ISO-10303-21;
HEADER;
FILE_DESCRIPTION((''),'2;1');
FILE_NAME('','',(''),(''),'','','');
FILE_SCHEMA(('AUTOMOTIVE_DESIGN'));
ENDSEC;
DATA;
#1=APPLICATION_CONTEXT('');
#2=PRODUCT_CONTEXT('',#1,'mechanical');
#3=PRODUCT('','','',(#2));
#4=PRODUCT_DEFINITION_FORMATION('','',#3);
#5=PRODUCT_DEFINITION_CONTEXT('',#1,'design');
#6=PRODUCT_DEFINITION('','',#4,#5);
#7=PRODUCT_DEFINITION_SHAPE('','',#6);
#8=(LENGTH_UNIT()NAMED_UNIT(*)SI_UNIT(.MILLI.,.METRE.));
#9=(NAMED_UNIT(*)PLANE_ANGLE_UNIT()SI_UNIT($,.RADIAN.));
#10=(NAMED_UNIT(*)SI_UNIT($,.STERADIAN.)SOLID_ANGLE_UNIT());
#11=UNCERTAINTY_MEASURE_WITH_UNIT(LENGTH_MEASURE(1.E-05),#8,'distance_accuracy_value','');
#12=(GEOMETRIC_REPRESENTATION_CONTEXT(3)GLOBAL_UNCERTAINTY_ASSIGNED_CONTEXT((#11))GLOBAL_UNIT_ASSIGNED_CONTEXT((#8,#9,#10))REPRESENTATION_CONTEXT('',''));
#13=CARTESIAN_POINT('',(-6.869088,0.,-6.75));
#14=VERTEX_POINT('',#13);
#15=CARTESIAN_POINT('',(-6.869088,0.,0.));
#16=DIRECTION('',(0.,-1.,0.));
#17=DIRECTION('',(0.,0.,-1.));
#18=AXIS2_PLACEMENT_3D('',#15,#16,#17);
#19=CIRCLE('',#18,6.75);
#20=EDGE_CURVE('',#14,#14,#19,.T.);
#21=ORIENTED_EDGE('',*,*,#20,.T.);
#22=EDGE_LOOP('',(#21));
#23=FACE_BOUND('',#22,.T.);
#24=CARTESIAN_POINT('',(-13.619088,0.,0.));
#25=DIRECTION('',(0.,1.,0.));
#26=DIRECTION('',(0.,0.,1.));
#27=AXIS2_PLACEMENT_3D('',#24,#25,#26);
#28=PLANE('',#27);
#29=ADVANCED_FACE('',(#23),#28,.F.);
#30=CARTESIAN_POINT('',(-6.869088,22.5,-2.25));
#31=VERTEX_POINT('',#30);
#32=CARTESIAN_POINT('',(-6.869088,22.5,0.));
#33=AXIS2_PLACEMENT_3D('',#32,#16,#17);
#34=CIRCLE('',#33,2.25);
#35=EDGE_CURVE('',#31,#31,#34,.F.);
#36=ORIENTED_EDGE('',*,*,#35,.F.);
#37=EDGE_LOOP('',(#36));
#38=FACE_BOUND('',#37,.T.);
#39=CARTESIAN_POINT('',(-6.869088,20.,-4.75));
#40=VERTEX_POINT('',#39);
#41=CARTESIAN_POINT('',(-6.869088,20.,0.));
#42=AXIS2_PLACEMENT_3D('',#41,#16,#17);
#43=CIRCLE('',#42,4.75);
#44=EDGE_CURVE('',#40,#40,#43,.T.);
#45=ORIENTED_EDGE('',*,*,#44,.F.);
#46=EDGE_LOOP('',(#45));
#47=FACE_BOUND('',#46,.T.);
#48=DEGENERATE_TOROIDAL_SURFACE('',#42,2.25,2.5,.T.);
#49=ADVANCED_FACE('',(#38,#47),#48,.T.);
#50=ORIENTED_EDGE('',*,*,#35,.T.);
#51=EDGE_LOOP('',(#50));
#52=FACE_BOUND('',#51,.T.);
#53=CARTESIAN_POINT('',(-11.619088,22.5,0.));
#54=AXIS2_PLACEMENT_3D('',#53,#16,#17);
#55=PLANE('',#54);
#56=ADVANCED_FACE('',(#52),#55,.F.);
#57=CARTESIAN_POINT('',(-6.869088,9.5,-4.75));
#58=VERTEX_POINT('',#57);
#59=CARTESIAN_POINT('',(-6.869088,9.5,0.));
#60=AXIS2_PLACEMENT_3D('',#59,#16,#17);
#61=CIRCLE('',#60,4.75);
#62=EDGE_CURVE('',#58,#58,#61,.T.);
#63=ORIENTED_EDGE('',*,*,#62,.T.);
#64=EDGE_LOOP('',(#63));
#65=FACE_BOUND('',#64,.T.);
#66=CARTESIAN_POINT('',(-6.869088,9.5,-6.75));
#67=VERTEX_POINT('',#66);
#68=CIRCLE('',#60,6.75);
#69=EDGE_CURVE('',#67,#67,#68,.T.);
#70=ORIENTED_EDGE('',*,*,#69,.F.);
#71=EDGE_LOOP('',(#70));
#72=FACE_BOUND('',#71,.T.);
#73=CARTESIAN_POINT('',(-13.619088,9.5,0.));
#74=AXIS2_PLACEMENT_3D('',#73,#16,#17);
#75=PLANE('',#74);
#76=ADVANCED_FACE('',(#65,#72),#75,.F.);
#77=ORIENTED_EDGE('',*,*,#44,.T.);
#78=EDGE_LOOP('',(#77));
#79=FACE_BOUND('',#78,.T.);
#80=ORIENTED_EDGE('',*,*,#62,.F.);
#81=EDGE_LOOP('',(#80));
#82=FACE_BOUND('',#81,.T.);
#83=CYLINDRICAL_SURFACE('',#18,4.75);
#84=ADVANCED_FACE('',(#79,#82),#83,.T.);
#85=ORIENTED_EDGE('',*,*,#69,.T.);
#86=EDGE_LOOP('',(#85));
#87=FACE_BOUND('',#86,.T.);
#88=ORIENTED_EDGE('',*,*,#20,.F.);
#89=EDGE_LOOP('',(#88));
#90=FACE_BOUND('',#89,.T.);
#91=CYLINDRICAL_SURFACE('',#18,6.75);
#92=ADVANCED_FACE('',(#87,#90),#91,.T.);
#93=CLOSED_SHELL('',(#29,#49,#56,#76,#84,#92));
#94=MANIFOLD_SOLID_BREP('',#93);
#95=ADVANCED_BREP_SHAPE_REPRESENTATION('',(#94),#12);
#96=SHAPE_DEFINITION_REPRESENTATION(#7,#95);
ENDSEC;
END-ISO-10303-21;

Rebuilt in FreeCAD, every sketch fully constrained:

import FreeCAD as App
import Part
import Sketcher
from FreeCAD import Vector
Q = App.Units.Quantity


def edges_at(feature, points):
    """Names of the edges that pass closest to the given points."""
    edges = feature.Shape.Edges
    near = lambda p: min(range(len(edges)), key=lambda i: edges[i].distToShape(Part.Vertex(*p))[0])
    return sorted({f"Edge{near(p) + 1}" for p in points})


def add_polygon(sketch, points):
    """Adds a closed chain of lines whose ends are joined by coincident constraints."""
    first, n = sketch.GeometryCount, len(points)
    for a, b in zip(points, points[1:] + points[:1]):
        sketch.addGeometry(Part.LineSegment(App.Vector(*a, 0), App.Vector(*b, 0)), False)
    for i in range(n):
        sketch.addConstraint(Sketcher.Constraint("Coincident", first + i, 2, first + (i + 1) % n, 1))

doc = App.newDocument("Part")
params = doc.addObject("Spreadsheet::Sheet", "Params")
for row, (alias, value) in enumerate([
    ("sketch1_width", "2 mm"),
    ("sketch1_height", "13 mm"),
    ("sketch1_height2", "9.5 mm"),
    ("sketch1_width2", "6.75 mm"),
    ("revolution_angle", "360 deg"),
    ("fillet_radius", "2.5 mm"),
], start=1):
    params.set(f"A{row}", alias)
    params.set(f"B{row}", "=" + value)
    params.setAlias(f"B{row}", alias)

body = doc.addObject("PartDesign::Body", "Body")

# Sketch on XY plane
sketch1 = body.newObject("Sketcher::SketchObject", "Sketch")
sketch1.AttachmentSupport = (doc.getObject("XY_Plane"), [""])
sketch1.MapMode = "FlatFace"
add_polygon(sketch1, [(-13.619088, 9.5), (-13.619088, 0), (-6.869088, 0), (-6.869088, 22.5), (-11.619088, 22.5), (-11.619088, 9.5)])  # lines 0-5
sketch1.addGeometry(Part.LineSegment(Vector(-6.869088, 0, 0), Vector(-6.869088, 22.5, 0)), True)  # axis
sketch1.addConstraint(Sketcher.Constraint("Vertical", 0))
sketch1.addConstraint(Sketcher.Constraint("Horizontal", 1))
sketch1.addConstraint(Sketcher.Constraint("Vertical", 2))
sketch1.addConstraint(Sketcher.Constraint("Horizontal", 3))
sketch1.addConstraint(Sketcher.Constraint("Vertical", 4))
sketch1.addConstraint(Sketcher.Constraint("Horizontal", 5))
sketch1.addConstraint(Sketcher.Constraint("Vertical", 6))
sketch1.addConstraint(Sketcher.Constraint("Coincident", 6, 1, 1, 2))
sketch1.addConstraint(Sketcher.Constraint("PointOnObject", 0, 2, -1))
sketch1.addConstraint(Sketcher.Constraint("Horizontal", 3, 2, 6, 2))
sketch1.addConstraint(Sketcher.Constraint("DistanceX", 5, 2, 5, 1, Q("2 mm")))
sketch1.addConstraint(Sketcher.Constraint("DistanceY", 4, 2, 4, 1, Q("13 mm")))
sketch1.addConstraint(Sketcher.Constraint("DistanceY", 0, 2, 0, 1, Q("9.5 mm")))
sketch1.addConstraint(Sketcher.Constraint("DistanceX", 1, 1, 1, 2, Q("6.75 mm")))
sketch1.addConstraint(Sketcher.Constraint("DistanceX", 0, 2, -1, 1, Q("13.619088 mm")))
sketch1.setExpression("Constraints[16]", "Params.sketch1_width")
sketch1.setExpression("Constraints[17]", "Params.sketch1_height")
sketch1.setExpression("Constraints[18]", "Params.sketch1_height2")
sketch1.setExpression("Constraints[19]", "Params.sketch1_width2")
revolution = body.newObject("PartDesign::Revolution", "Revolution")
revolution.Profile = sketch1
revolution.ReferenceAxis = (sketch1, ["Axis0"])
revolution.setExpression("Angle", "Params.revolution_angle")
doc.recompute()

fillet = body.newObject("PartDesign::Fillet", "Fillet")
fillet.Base = (revolution, edges_at(revolution, [(-2.119, 22.5, 0)]))
fillet.setExpression("Radius", "Params.fillet_radius")

doc.recompute()
